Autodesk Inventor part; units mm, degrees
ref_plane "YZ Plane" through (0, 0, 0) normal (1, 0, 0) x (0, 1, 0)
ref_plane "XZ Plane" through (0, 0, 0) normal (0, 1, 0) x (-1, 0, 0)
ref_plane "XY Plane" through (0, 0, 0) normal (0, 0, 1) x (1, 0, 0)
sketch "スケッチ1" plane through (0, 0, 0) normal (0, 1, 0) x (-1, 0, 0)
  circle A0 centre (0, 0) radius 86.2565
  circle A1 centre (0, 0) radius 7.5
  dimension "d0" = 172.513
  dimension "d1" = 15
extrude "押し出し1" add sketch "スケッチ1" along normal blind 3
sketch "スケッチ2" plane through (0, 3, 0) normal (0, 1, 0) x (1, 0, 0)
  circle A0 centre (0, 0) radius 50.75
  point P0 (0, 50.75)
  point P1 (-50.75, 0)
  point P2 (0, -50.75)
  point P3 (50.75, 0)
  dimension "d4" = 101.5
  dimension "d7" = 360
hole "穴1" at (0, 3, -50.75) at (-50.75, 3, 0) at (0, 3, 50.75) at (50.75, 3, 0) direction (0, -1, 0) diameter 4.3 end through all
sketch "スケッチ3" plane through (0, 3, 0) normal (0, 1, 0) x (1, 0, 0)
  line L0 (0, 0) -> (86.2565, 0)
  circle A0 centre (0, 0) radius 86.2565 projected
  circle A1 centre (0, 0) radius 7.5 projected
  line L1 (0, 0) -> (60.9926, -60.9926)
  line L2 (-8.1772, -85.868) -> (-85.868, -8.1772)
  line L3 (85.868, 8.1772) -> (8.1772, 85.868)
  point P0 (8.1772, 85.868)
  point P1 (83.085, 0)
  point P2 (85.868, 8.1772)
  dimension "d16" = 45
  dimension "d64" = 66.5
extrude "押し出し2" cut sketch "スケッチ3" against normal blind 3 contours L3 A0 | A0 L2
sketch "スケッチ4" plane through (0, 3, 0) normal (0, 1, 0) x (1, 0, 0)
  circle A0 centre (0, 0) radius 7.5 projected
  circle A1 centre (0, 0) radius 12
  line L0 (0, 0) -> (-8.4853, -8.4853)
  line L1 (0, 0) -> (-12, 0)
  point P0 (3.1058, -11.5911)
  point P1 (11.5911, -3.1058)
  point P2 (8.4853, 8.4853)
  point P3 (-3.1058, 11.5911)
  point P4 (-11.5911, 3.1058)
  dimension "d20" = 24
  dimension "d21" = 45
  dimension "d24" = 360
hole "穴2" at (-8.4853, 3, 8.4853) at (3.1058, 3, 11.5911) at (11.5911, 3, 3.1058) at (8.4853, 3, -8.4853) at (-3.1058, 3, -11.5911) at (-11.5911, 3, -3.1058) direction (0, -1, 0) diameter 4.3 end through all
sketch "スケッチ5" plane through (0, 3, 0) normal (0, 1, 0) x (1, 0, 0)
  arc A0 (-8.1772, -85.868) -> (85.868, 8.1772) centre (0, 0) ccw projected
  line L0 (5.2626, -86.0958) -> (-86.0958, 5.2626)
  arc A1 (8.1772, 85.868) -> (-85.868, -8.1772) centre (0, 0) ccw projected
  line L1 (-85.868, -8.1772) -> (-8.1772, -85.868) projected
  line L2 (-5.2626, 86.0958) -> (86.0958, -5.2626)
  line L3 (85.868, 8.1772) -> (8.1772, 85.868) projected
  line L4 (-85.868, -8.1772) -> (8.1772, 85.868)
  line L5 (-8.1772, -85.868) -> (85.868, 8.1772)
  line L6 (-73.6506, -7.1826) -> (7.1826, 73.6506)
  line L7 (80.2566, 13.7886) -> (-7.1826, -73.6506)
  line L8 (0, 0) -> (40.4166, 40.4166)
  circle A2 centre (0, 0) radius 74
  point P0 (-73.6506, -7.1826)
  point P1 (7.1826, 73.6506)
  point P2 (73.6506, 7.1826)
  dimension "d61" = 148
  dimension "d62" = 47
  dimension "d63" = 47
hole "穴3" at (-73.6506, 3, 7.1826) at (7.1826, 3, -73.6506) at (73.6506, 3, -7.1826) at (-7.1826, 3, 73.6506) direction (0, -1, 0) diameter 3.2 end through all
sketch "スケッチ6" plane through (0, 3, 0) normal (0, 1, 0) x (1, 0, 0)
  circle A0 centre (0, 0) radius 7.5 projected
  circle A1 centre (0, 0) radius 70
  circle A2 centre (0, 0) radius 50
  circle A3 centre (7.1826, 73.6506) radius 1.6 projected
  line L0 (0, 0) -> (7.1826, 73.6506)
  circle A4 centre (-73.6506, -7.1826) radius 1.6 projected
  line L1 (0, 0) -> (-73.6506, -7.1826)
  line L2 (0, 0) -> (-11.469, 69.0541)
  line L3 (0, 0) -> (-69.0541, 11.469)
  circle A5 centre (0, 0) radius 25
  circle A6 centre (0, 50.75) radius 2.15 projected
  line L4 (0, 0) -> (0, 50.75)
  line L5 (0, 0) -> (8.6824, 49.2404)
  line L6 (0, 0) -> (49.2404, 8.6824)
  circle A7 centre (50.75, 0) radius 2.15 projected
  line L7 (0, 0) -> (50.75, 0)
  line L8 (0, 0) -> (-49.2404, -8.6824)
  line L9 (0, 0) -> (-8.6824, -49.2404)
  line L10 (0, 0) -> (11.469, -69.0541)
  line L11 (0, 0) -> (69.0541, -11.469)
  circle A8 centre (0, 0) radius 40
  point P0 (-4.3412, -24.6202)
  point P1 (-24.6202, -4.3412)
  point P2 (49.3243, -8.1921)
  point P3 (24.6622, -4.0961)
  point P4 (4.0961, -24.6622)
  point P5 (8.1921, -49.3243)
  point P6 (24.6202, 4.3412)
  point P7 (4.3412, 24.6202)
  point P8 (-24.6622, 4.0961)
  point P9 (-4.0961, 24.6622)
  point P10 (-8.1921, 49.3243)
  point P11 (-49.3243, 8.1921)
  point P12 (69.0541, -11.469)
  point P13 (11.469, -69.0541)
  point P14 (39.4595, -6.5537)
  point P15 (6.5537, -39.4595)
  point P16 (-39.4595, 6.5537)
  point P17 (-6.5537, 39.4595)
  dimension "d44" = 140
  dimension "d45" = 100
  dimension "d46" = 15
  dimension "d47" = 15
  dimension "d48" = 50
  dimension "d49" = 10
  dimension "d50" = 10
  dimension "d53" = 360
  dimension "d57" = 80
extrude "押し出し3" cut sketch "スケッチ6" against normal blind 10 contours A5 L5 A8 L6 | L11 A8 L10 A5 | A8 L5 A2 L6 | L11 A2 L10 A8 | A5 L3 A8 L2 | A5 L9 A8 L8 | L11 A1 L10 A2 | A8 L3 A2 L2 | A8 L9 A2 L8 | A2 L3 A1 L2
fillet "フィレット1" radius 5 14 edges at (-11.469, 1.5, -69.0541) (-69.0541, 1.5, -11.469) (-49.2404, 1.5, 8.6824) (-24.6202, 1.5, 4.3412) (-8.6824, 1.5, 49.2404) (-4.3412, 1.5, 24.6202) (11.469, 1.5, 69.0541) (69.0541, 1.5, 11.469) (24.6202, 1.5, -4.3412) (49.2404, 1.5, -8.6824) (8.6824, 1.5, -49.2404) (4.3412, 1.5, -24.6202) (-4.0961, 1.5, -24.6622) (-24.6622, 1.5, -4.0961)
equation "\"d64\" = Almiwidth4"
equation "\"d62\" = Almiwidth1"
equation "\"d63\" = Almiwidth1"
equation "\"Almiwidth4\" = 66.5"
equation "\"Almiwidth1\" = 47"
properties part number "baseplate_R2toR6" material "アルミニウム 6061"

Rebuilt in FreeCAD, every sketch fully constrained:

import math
import FreeCAD as App
import Part
import Sketcher

V = App.Vector
Q = App.Units.Quantity


def edges_at(feature, points):
    """Names of the edges that pass closest to the given points."""
    edges = feature.Shape.Edges
    near = lambda p: min(range(len(edges)), key=lambda i: edges[i].distToShape(Part.Vertex(*p))[0])
    return sorted({f"Edge{near(p) + 1}" for p in points})

doc = App.newDocument("Part")
body = doc.addObject("PartDesign::Body", "Body")

# Sketch on XZ plane
sketch1 = body.newObject("Sketcher::SketchObject", "Sketch")
sketch1.AttachmentSupport = (doc.getObject("XZ_Plane"), [""])
sketch1.MapMode = "FlatFace"
sketch1.addGeometry([
    Part.Circle(V(0, 0, 0), V(0, 0, 1), 86),
    Part.Circle(V(0, 0, 0), V(0, 0, 1), 8),
], False)
sketch1.addConstraint([
    Sketcher.Constraint("Coincident", 0, 3, -1, 1),
    Sketcher.Constraint("Coincident", 1, 3, -1, 1),
    Sketcher.Constraint("Diameter", 1, 15.0),
    Sketcher.Constraint("Diameter", 0, 172.513),
])
pad1 = body.newObject("PartDesign::Pad", "Pad")
pad1.Profile = sketch1
pad1.Length = 3
pad1.Reversed = True

# Sketch on XZ plane
sketch2 = body.newObject("Sketcher::SketchObject", "Sketch001")
sketch2.AttachmentSupport = (doc.getObject("XZ_Plane"), [""])
sketch2.MapMode = "FlatFace"
sketch2.AttachmentOffset = App.Placement(V(0, 0, -3), App.Rotation())
sketch2.addGeometry([
    Part.Circle(V(0, -50.8, 0), V(0, 0, 1), 2.1),
    Part.Circle(V(-50.8, 0, 0), V(0, 0, 1), 2.1),
    Part.Circle(V(0, 50.8, 0), V(0, 0, 1), 2.1),
    Part.Circle(V(50.8, 0, 0), V(0, 0, 1), 2.1),
], False)
sketch2.addConstraint([
    Sketcher.Constraint("Equal", 0, 1),
    Sketcher.Constraint("Equal", 1, 2),
    Sketcher.Constraint("Equal", 2, 3),
    Sketcher.Constraint("Symmetric", 0, 3, 2, 3, -1, 1),
    Sketcher.Constraint("Symmetric", 1, 3, 3, 3, -1, 1),
    Sketcher.Constraint("PointOnObject", 0, 3, -2),
    Sketcher.Constraint("PointOnObject", 1, 3, -1),
    Sketcher.Constraint("Diameter", 0, 4.3),
    Sketcher.Constraint("DistanceY", 0, 3, 2, 3, 101.5),
    Sketcher.Constraint("DistanceX", 1, 3, 3, 3, 101.5),
])
doc.recompute()
hole = body.newObject("PartDesign::Hole", "Hole")
hole.Profile = sketch2
hole.ThreadType = "None"
hole.Diameter = 4.3
hole.DepthType = "ThroughAll"
hole.Reversed = True

# Sketch on XZ plane
sketch3 = body.newObject("Sketcher::SketchObject", "Sketch002")
sketch3.AttachmentSupport = (doc.getObject("XZ_Plane"), [""])
sketch3.MapMode = "FlatFace"
sketch3.AttachmentOffset = App.Placement(V(0, 0, -3), App.Rotation())
sketch3.addGeometry([
    Part.LineSegment(V(8, -86, 0), V(86, -8, 0)),
    Part.ArcOfCircle(Part.Circle(V(0, 0, 0), V(0, 0, 1), 86), math.radians(-85), math.radians(-5)),
    Part.ArcOfCircle(Part.Circle(V(0, 0, 0), V(0, 0, 1), 86), math.radians(95), math.radians(175)),
    Part.LineSegment(V(-86, 8, 0), V(-8, 86, 0)),
], False)
sketch3.addConstraint([
    Sketcher.Constraint("Coincident", 0, 1, 1, 1),
    Sketcher.Constraint("Coincident", 1, 2, 0, 2),
    Sketcher.Constraint("Coincident", 2, 1, 3, 2),
    Sketcher.Constraint("Coincident", 3, 1, 2, 2),
    Sketcher.Constraint("Coincident", 1, 3, -1, 1),
    Sketcher.Constraint("Coincident", 2, 3, -1, 1),
    Sketcher.Constraint("Equal", 1, 2),
    Sketcher.Constraint("Parallel", 0, 3),
    Sketcher.Constraint("Equal", 0, 3),
    Sketcher.Constraint("Angle", 0, Q("45 deg")),
    Sketcher.Constraint("Radius", 1, 86.2565),
    Sketcher.Constraint("DistanceY", 0, 1, -1, 1, 85.868),
])
pocket1 = body.newObject("PartDesign::Pocket", "Pocket")
pocket1.Profile = sketch3
pocket1.Length = 3
pocket1.Reversed = True

# Sketch on XZ plane
sketch4 = body.newObject("Sketcher::SketchObject", "Sketch003")
sketch4.AttachmentSupport = (doc.getObject("XZ_Plane"), [""])
sketch4.MapMode = "FlatFace"
sketch4.AttachmentOffset = App.Placement(V(0, 0, -3), App.Rotation())
sketch4.addGeometry([
    Part.Circle(V(-8.5, 8.5, 0), V(0, 0, 1), 2.1),  # 0
    Part.Circle(V(3.1, 11.6, 0), V(0, 0, 1), 2.1),  # 1
    Part.Circle(V(11.6, 3.1, 0), V(0, 0, 1), 2.1),  # 2
    Part.Circle(V(8.5, -8.5, 0), V(0, 0, 1), 2.1),  # 3
    Part.Circle(V(-3.1, -11.6, 0), V(0, 0, 1), 2.1),  # 4
    Part.Circle(V(-11.6, -3.1, 0), V(0, 0, 1), 2.1),  # 5
], False)
sketch4.addConstraint([
    Sketcher.Constraint("Equal", 0, 1),
    Sketcher.Constraint("Equal", 1, 2),
    Sketcher.Constraint("Equal", 2, 3),
    Sketcher.Constraint("Equal", 3, 4),
    Sketcher.Constraint("Equal", 4, 5),
    Sketcher.Constraint("Symmetric", 0, 3, 3, 3, -1, 1),
    Sketcher.Constraint("Symmetric", 1, 3, 4, 3, -1, 1),
    Sketcher.Constraint("Symmetric", 2, 3, 5, 3, -1, 1),
    Sketcher.Constraint("Diameter", 0, 4.3),
    Sketcher.Constraint("DistanceY", -1, 1, 1, 3, 11.591),
    Sketcher.Constraint("DistanceX", -1, 1, 2, 3, 11.591),
    Sketcher.Constraint("DistanceX", 0, 3, 1, 3, 11.591),
    Sketcher.Constraint("DistanceY", 3, 3, 2, 3, 11.591),
    Sketcher.Constraint("DistanceX", 4, 3, 2, 3, 14.697),
    Sketcher.Constraint("DistanceY", 4, 3, 2, 3, 14.697),
])
doc.recompute()
hole2 = body.newObject("PartDesign::Hole", "Hole001")
hole2.Profile = sketch4
hole2.ThreadType = "None"
hole2.Diameter = 4.3
hole2.DepthType = "ThroughAll"
hole2.Reversed = True

# Sketch on XZ plane
sketch5 = body.newObject("Sketcher::SketchObject", "Sketch004")
sketch5.AttachmentSupport = (doc.getObject("XZ_Plane"), [""])
sketch5.MapMode = "FlatFace"
sketch5.AttachmentOffset = App.Placement(V(0, 0, -3), App.Rotation())
sketch5.addGeometry([
    Part.Circle(V(-73.7, 7.2, 0), V(0, 0, 1), 1.6),
    Part.Circle(V(7.2, -73.7, 0), V(0, 0, 1), 1.6),
    Part.Circle(V(73.7, -7.2, 0), V(0, 0, 1), 1.6),
    Part.Circle(V(-7.2, 73.7, 0), V(0, 0, 1), 1.6),
], False)
sketch5.addConstraint([
    Sketcher.Constraint("Equal", 0, 1),
    Sketcher.Constraint("Equal", 1, 2),
    Sketcher.Constraint("Equal", 2, 3),
    Sketcher.Constraint("Symmetric", 0, 3, 2, 3, -1, 1),
    Sketcher.Constraint("Symmetric", 1, 3, 3, 3, -1, 1),
    Sketcher.Constraint("Diameter", 0, 3.2),
    Sketcher.Constraint("DistanceX", 1, 3, 2, 3, 66.468),
    Sketcher.Constraint("DistanceY", 1, 3, 2, 3, 66.468),
    Sketcher.Constraint("DistanceX", 0, 3, -1, 1, 73.6506),
    Sketcher.Constraint("DistanceY", -1, 1, 0, 3, 7.1826),
])
doc.recompute()
hole3 = body.newObject("PartDesign::Hole", "Hole002")
hole3.Profile = sketch5
hole3.ThreadType = "None"
hole3.Diameter = 3.2
hole3.DepthType = "ThroughAll"
hole3.Reversed = True

# Sketch on XZ plane
sketch6 = body.newObject("Sketcher::SketchObject", "Sketch005")
sketch6.AttachmentSupport = (doc.getObject("XZ_Plane"), [""])
sketch6.MapMode = "FlatFace"
sketch6.AttachmentOffset = App.Placement(V(0, 0, -3), App.Rotation())
sketch6.addGeometry([
    Part.ArcOfCircle(Part.Circle(V(0, 0, 0), V(0, 0, 1), 25), math.radians(-80), math.radians(-10)),  # 0
    Part.LineSegment(V(25, -4, 0), V(49, -9, 0)),  # 1
    Part.ArcOfCircle(Part.Circle(V(0, 0, 0), V(0, 0, 1), 50), math.radians(-80), math.radians(-10)),  # 2
    Part.LineSegment(V(9, -49, 0), V(4, -25, 0)),  # 3
    Part.ArcOfCircle(Part.Circle(V(0, 0, 0), V(0, 0, 1), 25), math.radians(9), math.radians(81)),  # 4
    Part.LineSegment(V(4, 25, 0), V(11, 69, 0)),  # 5
    Part.ArcOfCircle(Part.Circle(V(0, 0, 0), V(0, 0, 1), 70), math.radians(9), math.radians(81)),  # 6
    Part.LineSegment(V(69, 11, 0), V(25, 4, 0)),  # 7
    Part.ArcOfCircle(Part.Circle(V(0, 0, 0), V(0, 0, 1), 25), math.radians(-171), math.radians(-99)),  # 8
    Part.LineSegment(V(-4, -25, 0), V(-11, -69, 0)),  # 9
    Part.ArcOfCircle(Part.Circle(V(0, 0, 0), V(0, 0, 1), 70), math.radians(-171), math.radians(-99)),  # 10
    Part.LineSegment(V(-69, -11, 0), V(-25, -4, 0)),  # 11
    Part.ArcOfCircle(Part.Circle(V(0, 0, 0), V(0, 0, 1), 25), math.radians(100), math.radians(170)),  # 12
    Part.LineSegment(V(-25, 4, 0), V(-49, 9, 0)),  # 13
    Part.ArcOfCircle(Part.Circle(V(0, 0, 0), V(0, 0, 1), 50), math.radians(100), math.radians(170)),  # 14
    Part.LineSegment(V(-9, 49, 0), V(-4, 25, 0)),  # 15
], False)
sketch6.addConstraint([
    Sketcher.Constraint("Coincident", 0, 2, 1, 1),
    Sketcher.Constraint("Coincident", 1, 2, 2, 2),
    Sketcher.Constraint("Coincident", 2, 1, 3, 1),
    Sketcher.Constraint("Coincident", 3, 2, 0, 1),
    Sketcher.Constraint("Coincident", 4, 2, 5, 1),
    Sketcher.Constraint("Coincident", 5, 2, 6, 2),
    Sketcher.Constraint("Coincident", 6, 1, 7, 1),
    Sketcher.Constraint("Coincident", 7, 2, 4, 1),
    Sketcher.Constraint("Coincident", 8, 2, 9, 1),
    Sketcher.Constraint("Coincident", 9, 2, 10, 2),
    Sketcher.Constraint("Coincident", 10, 1, 11, 1),
    Sketcher.Constraint("Coincident", 11, 2, 8, 1),
    Sketcher.Constraint("Coincident", 12, 2, 13, 1),
    Sketcher.Constraint("Coincident", 13, 2, 14, 2),
    Sketcher.Constraint("Coincident", 14, 1, 15, 1),
    Sketcher.Constraint("Coincident", 15, 2, 12, 1),
    Sketcher.Constraint("Coincident", 0, 3, -1, 1),
    Sketcher.Constraint("Coincident", 2, 3, -1, 1),
    Sketcher.Constraint("Coincident", 4, 3, -1, 1),
    Sketcher.Constraint("Coincident", 6, 3, -1, 1),
    Sketcher.Constraint("Coincident", 8, 3, -1, 1),
    Sketcher.Constraint("Coincident", 10, 3, -1, 1),
    Sketcher.Constraint("Coincident", 12, 3, -1, 1),
    Sketcher.Constraint("Coincident", 14, 3, -1, 1),
    Sketcher.Constraint("Equal", 0, 4),
    Sketcher.Constraint("Equal", 4, 8),
    Sketcher.Constraint("Equal", 6, 10),
    Sketcher.Constraint("Equal", 8, 12),
    Sketcher.Constraint("Equal", 2, 14),
    Sketcher.Constraint("Parallel", 5, 9),
    Sketcher.Constraint("Parallel", 7, 11),
    Sketcher.Constraint("Parallel", 1, 13),
    Sketcher.Constraint("Parallel", 3, 15),
    Sketcher.Constraint("Radius", 0, 25.0),
    Sketcher.Constraint("Radius", 2, 50.0),
    Sketcher.Constraint("Radius", 6, 70.0),
    Sketcher.Constraint("Angle", 1, Q("-10 deg")),
    Sketcher.Constraint("Angle", 3, Q("100 deg")),
    Sketcher.Constraint("Angle", 5, Q("80.57 deg")),
    Sketcher.Constraint("Angle", 7, Q("-170.57 deg")),
    Sketcher.Constraint("DistanceX", -1, 1, 4, 2, 4.096),
    Sketcher.Constraint("DistanceX", -1, 1, 6, 1, 69.054),
    Sketcher.Constraint("DistanceX", 8, 2, -1, 1, 4.096),
    Sketcher.Constraint("DistanceX", 10, 1, -1, 1, 69.054),
    Sketcher.Constraint("DistanceX", 0, 2, 7, 2, 0.042),
    Sketcher.Constraint("DistanceY", 8, 2, 3, 2, 0.042),
    Sketcher.Constraint("DistanceX", 11, 2, 12, 2, 0.042),
    Sketcher.Constraint("DistanceY", 15, 2, 4, 2, 0.042),
])
pocket2 = body.newObject("PartDesign::Pocket", "Pocket001")
pocket2.Profile = sketch6
pocket2.Length = 10
pocket2.Reversed = True
doc.recompute()

fillet = body.newObject("PartDesign::Fillet", "Fillet")
fillet.Base = (pocket2, edges_at(pocket2, [
    (-11.469, 1.5, -69.054),
    (-69.054, 1.5, -11.469),
    (-49.24, 1.5, 8.682),
    (-24.62, 1.5, 4.341),
    (-8.682, 1.5, 49.24),
    (-4.341, 1.5, 24.62),
    (11.469, 1.5, 69.054),
    (69.054, 1.5, 11.469),
    (24.62, 1.5, -4.341),
    (49.24, 1.5, -8.682),
    (8.682, 1.5, -49.24),
    (4.341, 1.5, -24.62),
    (-4.096, 1.5, -24.662),
    (-24.662, 1.5, -4.096),
]))
fillet.Radius = 5

doc.recompute()
